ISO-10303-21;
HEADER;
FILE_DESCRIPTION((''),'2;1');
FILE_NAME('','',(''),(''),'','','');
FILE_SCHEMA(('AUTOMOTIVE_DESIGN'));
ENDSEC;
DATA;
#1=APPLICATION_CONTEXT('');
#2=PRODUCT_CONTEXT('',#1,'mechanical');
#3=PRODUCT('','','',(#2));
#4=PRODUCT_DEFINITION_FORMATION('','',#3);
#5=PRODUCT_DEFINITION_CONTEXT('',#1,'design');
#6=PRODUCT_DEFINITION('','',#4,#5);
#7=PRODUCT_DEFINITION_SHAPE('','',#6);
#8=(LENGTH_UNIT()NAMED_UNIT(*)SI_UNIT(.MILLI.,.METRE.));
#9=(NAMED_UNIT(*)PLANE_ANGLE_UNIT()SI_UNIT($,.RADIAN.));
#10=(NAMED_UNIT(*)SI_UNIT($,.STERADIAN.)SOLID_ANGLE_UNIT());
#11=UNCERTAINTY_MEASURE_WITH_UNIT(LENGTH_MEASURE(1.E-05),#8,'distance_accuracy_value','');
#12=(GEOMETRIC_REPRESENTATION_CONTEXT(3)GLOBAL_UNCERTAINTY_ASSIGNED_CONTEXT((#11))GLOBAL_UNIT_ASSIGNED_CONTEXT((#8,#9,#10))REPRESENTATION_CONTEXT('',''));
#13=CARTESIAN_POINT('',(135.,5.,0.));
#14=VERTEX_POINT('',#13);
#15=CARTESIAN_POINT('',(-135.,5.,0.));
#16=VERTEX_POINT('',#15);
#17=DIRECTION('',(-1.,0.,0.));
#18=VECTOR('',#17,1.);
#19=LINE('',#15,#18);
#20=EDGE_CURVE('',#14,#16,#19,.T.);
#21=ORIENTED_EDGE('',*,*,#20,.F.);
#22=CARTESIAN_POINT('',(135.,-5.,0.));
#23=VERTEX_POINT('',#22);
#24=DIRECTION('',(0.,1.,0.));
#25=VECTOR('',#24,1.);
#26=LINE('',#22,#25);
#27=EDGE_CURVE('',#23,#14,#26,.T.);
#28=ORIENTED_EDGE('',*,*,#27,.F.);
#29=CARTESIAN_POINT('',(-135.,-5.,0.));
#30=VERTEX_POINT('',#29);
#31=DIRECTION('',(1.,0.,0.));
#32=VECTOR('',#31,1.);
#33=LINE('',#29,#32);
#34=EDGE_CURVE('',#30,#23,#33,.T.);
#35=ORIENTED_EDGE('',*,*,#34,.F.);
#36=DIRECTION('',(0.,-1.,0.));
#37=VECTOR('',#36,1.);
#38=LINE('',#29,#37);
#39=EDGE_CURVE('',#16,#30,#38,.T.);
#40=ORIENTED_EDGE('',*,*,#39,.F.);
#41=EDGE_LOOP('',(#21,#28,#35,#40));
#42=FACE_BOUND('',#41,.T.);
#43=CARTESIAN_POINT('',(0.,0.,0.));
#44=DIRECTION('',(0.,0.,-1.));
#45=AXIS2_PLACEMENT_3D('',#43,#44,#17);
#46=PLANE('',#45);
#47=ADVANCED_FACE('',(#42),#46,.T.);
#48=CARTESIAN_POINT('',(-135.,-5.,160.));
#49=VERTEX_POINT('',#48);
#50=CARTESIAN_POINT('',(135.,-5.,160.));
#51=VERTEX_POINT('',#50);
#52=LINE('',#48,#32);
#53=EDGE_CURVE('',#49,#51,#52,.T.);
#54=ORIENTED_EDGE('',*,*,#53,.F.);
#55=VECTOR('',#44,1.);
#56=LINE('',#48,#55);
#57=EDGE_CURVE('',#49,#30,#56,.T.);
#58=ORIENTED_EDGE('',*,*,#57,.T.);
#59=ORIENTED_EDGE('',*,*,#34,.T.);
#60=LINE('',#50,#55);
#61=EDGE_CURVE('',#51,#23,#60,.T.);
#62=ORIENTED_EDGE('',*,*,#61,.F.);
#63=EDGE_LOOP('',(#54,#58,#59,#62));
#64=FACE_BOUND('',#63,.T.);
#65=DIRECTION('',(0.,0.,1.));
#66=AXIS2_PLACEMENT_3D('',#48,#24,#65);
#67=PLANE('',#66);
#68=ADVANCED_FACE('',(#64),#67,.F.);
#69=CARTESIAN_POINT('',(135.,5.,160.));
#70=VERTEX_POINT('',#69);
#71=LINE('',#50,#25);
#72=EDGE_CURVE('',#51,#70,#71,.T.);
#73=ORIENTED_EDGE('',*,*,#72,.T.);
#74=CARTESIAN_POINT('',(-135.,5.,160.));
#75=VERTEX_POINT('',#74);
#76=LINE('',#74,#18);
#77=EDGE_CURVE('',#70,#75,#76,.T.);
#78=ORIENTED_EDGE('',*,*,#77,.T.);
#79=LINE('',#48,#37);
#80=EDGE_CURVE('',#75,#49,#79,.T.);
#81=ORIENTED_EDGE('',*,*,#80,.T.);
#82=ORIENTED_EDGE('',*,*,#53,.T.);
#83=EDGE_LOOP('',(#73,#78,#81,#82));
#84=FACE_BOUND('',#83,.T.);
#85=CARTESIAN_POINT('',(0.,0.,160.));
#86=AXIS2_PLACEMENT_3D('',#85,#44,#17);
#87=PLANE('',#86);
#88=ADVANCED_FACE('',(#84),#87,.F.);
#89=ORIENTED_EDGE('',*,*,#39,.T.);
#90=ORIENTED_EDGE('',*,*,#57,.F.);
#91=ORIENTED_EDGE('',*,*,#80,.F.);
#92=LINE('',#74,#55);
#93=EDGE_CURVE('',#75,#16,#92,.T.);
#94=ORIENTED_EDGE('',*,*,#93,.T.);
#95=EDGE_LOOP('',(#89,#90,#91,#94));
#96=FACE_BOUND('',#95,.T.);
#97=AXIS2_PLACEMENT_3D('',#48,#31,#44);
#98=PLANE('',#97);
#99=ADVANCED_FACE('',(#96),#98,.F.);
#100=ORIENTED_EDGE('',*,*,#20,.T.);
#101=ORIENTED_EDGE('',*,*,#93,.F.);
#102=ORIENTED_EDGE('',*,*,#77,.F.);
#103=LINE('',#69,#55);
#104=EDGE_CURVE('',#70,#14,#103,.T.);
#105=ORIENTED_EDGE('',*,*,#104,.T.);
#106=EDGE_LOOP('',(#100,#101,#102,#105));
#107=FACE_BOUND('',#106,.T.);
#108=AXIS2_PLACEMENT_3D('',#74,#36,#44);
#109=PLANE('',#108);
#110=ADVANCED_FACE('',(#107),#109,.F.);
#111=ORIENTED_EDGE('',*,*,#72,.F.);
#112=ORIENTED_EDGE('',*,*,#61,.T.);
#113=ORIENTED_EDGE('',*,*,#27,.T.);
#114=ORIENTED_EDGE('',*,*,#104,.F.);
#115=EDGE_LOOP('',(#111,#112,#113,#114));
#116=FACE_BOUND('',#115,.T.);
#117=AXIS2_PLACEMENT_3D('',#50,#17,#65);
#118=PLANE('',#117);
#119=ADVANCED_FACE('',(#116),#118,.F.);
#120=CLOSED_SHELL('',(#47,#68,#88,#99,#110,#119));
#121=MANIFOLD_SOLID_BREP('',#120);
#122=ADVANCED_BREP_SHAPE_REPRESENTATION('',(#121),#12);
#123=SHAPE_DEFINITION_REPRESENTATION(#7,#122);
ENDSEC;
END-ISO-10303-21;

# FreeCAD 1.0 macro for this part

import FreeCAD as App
import Part
import Sketcher
from FreeCAD import Vector

doc = App.newDocument("Part")
body = doc.addObject("PartDesign::Body", "Body")

sketch1 = body.newObject("Sketcher::SketchObject", "Sketch")
sketch1.AttachmentSupport = (doc.getObject("XY_Plane"), [""])
sketch1.MapMode = "FlatFace"
sketch1.addGeometry([
    Part.LineSegment(Vector(-135, 5, 0), Vector(-135, -5, 0)),
    Part.LineSegment(Vector(-135, -5, 0), Vector(135, -5, 0)),
    Part.LineSegment(Vector(135, -5, 0), Vector(135, 5, 0)),
    Part.LineSegment(Vector(135, 5, 0), Vector(-135, 5, 0)),
], False)
sketch1.addConstraint([
    Sketcher.Constraint("Coincident", 0, 2, 1, 1),
    Sketcher.Constraint("Coincident", 1, 2, 2, 1),
    Sketcher.Constraint("Coincident", 2, 2, 3, 1),
    Sketcher.Constraint("Coincident", 3, 2, 0, 1),
    Sketcher.Constraint("Vertical", 0),
    Sketcher.Constraint("Horizontal", 1),
    Sketcher.Constraint("Vertical", 2),
    Sketcher.Constraint("Horizontal", 3),
    Sketcher.Constraint("Symmetric", 0, 2, 2, 2, -1, 1),
    Sketcher.Constraint("DistanceX", 1, 1, 1, 2, 270.0),
    Sketcher.Constraint("DistanceY", 0, 2, 0, 1, 10.0),
])
pad1 = body.newObject("PartDesign::Pad", "Pad")
pad1.Profile = sketch1
pad1.Length = 160

doc.recompute()
